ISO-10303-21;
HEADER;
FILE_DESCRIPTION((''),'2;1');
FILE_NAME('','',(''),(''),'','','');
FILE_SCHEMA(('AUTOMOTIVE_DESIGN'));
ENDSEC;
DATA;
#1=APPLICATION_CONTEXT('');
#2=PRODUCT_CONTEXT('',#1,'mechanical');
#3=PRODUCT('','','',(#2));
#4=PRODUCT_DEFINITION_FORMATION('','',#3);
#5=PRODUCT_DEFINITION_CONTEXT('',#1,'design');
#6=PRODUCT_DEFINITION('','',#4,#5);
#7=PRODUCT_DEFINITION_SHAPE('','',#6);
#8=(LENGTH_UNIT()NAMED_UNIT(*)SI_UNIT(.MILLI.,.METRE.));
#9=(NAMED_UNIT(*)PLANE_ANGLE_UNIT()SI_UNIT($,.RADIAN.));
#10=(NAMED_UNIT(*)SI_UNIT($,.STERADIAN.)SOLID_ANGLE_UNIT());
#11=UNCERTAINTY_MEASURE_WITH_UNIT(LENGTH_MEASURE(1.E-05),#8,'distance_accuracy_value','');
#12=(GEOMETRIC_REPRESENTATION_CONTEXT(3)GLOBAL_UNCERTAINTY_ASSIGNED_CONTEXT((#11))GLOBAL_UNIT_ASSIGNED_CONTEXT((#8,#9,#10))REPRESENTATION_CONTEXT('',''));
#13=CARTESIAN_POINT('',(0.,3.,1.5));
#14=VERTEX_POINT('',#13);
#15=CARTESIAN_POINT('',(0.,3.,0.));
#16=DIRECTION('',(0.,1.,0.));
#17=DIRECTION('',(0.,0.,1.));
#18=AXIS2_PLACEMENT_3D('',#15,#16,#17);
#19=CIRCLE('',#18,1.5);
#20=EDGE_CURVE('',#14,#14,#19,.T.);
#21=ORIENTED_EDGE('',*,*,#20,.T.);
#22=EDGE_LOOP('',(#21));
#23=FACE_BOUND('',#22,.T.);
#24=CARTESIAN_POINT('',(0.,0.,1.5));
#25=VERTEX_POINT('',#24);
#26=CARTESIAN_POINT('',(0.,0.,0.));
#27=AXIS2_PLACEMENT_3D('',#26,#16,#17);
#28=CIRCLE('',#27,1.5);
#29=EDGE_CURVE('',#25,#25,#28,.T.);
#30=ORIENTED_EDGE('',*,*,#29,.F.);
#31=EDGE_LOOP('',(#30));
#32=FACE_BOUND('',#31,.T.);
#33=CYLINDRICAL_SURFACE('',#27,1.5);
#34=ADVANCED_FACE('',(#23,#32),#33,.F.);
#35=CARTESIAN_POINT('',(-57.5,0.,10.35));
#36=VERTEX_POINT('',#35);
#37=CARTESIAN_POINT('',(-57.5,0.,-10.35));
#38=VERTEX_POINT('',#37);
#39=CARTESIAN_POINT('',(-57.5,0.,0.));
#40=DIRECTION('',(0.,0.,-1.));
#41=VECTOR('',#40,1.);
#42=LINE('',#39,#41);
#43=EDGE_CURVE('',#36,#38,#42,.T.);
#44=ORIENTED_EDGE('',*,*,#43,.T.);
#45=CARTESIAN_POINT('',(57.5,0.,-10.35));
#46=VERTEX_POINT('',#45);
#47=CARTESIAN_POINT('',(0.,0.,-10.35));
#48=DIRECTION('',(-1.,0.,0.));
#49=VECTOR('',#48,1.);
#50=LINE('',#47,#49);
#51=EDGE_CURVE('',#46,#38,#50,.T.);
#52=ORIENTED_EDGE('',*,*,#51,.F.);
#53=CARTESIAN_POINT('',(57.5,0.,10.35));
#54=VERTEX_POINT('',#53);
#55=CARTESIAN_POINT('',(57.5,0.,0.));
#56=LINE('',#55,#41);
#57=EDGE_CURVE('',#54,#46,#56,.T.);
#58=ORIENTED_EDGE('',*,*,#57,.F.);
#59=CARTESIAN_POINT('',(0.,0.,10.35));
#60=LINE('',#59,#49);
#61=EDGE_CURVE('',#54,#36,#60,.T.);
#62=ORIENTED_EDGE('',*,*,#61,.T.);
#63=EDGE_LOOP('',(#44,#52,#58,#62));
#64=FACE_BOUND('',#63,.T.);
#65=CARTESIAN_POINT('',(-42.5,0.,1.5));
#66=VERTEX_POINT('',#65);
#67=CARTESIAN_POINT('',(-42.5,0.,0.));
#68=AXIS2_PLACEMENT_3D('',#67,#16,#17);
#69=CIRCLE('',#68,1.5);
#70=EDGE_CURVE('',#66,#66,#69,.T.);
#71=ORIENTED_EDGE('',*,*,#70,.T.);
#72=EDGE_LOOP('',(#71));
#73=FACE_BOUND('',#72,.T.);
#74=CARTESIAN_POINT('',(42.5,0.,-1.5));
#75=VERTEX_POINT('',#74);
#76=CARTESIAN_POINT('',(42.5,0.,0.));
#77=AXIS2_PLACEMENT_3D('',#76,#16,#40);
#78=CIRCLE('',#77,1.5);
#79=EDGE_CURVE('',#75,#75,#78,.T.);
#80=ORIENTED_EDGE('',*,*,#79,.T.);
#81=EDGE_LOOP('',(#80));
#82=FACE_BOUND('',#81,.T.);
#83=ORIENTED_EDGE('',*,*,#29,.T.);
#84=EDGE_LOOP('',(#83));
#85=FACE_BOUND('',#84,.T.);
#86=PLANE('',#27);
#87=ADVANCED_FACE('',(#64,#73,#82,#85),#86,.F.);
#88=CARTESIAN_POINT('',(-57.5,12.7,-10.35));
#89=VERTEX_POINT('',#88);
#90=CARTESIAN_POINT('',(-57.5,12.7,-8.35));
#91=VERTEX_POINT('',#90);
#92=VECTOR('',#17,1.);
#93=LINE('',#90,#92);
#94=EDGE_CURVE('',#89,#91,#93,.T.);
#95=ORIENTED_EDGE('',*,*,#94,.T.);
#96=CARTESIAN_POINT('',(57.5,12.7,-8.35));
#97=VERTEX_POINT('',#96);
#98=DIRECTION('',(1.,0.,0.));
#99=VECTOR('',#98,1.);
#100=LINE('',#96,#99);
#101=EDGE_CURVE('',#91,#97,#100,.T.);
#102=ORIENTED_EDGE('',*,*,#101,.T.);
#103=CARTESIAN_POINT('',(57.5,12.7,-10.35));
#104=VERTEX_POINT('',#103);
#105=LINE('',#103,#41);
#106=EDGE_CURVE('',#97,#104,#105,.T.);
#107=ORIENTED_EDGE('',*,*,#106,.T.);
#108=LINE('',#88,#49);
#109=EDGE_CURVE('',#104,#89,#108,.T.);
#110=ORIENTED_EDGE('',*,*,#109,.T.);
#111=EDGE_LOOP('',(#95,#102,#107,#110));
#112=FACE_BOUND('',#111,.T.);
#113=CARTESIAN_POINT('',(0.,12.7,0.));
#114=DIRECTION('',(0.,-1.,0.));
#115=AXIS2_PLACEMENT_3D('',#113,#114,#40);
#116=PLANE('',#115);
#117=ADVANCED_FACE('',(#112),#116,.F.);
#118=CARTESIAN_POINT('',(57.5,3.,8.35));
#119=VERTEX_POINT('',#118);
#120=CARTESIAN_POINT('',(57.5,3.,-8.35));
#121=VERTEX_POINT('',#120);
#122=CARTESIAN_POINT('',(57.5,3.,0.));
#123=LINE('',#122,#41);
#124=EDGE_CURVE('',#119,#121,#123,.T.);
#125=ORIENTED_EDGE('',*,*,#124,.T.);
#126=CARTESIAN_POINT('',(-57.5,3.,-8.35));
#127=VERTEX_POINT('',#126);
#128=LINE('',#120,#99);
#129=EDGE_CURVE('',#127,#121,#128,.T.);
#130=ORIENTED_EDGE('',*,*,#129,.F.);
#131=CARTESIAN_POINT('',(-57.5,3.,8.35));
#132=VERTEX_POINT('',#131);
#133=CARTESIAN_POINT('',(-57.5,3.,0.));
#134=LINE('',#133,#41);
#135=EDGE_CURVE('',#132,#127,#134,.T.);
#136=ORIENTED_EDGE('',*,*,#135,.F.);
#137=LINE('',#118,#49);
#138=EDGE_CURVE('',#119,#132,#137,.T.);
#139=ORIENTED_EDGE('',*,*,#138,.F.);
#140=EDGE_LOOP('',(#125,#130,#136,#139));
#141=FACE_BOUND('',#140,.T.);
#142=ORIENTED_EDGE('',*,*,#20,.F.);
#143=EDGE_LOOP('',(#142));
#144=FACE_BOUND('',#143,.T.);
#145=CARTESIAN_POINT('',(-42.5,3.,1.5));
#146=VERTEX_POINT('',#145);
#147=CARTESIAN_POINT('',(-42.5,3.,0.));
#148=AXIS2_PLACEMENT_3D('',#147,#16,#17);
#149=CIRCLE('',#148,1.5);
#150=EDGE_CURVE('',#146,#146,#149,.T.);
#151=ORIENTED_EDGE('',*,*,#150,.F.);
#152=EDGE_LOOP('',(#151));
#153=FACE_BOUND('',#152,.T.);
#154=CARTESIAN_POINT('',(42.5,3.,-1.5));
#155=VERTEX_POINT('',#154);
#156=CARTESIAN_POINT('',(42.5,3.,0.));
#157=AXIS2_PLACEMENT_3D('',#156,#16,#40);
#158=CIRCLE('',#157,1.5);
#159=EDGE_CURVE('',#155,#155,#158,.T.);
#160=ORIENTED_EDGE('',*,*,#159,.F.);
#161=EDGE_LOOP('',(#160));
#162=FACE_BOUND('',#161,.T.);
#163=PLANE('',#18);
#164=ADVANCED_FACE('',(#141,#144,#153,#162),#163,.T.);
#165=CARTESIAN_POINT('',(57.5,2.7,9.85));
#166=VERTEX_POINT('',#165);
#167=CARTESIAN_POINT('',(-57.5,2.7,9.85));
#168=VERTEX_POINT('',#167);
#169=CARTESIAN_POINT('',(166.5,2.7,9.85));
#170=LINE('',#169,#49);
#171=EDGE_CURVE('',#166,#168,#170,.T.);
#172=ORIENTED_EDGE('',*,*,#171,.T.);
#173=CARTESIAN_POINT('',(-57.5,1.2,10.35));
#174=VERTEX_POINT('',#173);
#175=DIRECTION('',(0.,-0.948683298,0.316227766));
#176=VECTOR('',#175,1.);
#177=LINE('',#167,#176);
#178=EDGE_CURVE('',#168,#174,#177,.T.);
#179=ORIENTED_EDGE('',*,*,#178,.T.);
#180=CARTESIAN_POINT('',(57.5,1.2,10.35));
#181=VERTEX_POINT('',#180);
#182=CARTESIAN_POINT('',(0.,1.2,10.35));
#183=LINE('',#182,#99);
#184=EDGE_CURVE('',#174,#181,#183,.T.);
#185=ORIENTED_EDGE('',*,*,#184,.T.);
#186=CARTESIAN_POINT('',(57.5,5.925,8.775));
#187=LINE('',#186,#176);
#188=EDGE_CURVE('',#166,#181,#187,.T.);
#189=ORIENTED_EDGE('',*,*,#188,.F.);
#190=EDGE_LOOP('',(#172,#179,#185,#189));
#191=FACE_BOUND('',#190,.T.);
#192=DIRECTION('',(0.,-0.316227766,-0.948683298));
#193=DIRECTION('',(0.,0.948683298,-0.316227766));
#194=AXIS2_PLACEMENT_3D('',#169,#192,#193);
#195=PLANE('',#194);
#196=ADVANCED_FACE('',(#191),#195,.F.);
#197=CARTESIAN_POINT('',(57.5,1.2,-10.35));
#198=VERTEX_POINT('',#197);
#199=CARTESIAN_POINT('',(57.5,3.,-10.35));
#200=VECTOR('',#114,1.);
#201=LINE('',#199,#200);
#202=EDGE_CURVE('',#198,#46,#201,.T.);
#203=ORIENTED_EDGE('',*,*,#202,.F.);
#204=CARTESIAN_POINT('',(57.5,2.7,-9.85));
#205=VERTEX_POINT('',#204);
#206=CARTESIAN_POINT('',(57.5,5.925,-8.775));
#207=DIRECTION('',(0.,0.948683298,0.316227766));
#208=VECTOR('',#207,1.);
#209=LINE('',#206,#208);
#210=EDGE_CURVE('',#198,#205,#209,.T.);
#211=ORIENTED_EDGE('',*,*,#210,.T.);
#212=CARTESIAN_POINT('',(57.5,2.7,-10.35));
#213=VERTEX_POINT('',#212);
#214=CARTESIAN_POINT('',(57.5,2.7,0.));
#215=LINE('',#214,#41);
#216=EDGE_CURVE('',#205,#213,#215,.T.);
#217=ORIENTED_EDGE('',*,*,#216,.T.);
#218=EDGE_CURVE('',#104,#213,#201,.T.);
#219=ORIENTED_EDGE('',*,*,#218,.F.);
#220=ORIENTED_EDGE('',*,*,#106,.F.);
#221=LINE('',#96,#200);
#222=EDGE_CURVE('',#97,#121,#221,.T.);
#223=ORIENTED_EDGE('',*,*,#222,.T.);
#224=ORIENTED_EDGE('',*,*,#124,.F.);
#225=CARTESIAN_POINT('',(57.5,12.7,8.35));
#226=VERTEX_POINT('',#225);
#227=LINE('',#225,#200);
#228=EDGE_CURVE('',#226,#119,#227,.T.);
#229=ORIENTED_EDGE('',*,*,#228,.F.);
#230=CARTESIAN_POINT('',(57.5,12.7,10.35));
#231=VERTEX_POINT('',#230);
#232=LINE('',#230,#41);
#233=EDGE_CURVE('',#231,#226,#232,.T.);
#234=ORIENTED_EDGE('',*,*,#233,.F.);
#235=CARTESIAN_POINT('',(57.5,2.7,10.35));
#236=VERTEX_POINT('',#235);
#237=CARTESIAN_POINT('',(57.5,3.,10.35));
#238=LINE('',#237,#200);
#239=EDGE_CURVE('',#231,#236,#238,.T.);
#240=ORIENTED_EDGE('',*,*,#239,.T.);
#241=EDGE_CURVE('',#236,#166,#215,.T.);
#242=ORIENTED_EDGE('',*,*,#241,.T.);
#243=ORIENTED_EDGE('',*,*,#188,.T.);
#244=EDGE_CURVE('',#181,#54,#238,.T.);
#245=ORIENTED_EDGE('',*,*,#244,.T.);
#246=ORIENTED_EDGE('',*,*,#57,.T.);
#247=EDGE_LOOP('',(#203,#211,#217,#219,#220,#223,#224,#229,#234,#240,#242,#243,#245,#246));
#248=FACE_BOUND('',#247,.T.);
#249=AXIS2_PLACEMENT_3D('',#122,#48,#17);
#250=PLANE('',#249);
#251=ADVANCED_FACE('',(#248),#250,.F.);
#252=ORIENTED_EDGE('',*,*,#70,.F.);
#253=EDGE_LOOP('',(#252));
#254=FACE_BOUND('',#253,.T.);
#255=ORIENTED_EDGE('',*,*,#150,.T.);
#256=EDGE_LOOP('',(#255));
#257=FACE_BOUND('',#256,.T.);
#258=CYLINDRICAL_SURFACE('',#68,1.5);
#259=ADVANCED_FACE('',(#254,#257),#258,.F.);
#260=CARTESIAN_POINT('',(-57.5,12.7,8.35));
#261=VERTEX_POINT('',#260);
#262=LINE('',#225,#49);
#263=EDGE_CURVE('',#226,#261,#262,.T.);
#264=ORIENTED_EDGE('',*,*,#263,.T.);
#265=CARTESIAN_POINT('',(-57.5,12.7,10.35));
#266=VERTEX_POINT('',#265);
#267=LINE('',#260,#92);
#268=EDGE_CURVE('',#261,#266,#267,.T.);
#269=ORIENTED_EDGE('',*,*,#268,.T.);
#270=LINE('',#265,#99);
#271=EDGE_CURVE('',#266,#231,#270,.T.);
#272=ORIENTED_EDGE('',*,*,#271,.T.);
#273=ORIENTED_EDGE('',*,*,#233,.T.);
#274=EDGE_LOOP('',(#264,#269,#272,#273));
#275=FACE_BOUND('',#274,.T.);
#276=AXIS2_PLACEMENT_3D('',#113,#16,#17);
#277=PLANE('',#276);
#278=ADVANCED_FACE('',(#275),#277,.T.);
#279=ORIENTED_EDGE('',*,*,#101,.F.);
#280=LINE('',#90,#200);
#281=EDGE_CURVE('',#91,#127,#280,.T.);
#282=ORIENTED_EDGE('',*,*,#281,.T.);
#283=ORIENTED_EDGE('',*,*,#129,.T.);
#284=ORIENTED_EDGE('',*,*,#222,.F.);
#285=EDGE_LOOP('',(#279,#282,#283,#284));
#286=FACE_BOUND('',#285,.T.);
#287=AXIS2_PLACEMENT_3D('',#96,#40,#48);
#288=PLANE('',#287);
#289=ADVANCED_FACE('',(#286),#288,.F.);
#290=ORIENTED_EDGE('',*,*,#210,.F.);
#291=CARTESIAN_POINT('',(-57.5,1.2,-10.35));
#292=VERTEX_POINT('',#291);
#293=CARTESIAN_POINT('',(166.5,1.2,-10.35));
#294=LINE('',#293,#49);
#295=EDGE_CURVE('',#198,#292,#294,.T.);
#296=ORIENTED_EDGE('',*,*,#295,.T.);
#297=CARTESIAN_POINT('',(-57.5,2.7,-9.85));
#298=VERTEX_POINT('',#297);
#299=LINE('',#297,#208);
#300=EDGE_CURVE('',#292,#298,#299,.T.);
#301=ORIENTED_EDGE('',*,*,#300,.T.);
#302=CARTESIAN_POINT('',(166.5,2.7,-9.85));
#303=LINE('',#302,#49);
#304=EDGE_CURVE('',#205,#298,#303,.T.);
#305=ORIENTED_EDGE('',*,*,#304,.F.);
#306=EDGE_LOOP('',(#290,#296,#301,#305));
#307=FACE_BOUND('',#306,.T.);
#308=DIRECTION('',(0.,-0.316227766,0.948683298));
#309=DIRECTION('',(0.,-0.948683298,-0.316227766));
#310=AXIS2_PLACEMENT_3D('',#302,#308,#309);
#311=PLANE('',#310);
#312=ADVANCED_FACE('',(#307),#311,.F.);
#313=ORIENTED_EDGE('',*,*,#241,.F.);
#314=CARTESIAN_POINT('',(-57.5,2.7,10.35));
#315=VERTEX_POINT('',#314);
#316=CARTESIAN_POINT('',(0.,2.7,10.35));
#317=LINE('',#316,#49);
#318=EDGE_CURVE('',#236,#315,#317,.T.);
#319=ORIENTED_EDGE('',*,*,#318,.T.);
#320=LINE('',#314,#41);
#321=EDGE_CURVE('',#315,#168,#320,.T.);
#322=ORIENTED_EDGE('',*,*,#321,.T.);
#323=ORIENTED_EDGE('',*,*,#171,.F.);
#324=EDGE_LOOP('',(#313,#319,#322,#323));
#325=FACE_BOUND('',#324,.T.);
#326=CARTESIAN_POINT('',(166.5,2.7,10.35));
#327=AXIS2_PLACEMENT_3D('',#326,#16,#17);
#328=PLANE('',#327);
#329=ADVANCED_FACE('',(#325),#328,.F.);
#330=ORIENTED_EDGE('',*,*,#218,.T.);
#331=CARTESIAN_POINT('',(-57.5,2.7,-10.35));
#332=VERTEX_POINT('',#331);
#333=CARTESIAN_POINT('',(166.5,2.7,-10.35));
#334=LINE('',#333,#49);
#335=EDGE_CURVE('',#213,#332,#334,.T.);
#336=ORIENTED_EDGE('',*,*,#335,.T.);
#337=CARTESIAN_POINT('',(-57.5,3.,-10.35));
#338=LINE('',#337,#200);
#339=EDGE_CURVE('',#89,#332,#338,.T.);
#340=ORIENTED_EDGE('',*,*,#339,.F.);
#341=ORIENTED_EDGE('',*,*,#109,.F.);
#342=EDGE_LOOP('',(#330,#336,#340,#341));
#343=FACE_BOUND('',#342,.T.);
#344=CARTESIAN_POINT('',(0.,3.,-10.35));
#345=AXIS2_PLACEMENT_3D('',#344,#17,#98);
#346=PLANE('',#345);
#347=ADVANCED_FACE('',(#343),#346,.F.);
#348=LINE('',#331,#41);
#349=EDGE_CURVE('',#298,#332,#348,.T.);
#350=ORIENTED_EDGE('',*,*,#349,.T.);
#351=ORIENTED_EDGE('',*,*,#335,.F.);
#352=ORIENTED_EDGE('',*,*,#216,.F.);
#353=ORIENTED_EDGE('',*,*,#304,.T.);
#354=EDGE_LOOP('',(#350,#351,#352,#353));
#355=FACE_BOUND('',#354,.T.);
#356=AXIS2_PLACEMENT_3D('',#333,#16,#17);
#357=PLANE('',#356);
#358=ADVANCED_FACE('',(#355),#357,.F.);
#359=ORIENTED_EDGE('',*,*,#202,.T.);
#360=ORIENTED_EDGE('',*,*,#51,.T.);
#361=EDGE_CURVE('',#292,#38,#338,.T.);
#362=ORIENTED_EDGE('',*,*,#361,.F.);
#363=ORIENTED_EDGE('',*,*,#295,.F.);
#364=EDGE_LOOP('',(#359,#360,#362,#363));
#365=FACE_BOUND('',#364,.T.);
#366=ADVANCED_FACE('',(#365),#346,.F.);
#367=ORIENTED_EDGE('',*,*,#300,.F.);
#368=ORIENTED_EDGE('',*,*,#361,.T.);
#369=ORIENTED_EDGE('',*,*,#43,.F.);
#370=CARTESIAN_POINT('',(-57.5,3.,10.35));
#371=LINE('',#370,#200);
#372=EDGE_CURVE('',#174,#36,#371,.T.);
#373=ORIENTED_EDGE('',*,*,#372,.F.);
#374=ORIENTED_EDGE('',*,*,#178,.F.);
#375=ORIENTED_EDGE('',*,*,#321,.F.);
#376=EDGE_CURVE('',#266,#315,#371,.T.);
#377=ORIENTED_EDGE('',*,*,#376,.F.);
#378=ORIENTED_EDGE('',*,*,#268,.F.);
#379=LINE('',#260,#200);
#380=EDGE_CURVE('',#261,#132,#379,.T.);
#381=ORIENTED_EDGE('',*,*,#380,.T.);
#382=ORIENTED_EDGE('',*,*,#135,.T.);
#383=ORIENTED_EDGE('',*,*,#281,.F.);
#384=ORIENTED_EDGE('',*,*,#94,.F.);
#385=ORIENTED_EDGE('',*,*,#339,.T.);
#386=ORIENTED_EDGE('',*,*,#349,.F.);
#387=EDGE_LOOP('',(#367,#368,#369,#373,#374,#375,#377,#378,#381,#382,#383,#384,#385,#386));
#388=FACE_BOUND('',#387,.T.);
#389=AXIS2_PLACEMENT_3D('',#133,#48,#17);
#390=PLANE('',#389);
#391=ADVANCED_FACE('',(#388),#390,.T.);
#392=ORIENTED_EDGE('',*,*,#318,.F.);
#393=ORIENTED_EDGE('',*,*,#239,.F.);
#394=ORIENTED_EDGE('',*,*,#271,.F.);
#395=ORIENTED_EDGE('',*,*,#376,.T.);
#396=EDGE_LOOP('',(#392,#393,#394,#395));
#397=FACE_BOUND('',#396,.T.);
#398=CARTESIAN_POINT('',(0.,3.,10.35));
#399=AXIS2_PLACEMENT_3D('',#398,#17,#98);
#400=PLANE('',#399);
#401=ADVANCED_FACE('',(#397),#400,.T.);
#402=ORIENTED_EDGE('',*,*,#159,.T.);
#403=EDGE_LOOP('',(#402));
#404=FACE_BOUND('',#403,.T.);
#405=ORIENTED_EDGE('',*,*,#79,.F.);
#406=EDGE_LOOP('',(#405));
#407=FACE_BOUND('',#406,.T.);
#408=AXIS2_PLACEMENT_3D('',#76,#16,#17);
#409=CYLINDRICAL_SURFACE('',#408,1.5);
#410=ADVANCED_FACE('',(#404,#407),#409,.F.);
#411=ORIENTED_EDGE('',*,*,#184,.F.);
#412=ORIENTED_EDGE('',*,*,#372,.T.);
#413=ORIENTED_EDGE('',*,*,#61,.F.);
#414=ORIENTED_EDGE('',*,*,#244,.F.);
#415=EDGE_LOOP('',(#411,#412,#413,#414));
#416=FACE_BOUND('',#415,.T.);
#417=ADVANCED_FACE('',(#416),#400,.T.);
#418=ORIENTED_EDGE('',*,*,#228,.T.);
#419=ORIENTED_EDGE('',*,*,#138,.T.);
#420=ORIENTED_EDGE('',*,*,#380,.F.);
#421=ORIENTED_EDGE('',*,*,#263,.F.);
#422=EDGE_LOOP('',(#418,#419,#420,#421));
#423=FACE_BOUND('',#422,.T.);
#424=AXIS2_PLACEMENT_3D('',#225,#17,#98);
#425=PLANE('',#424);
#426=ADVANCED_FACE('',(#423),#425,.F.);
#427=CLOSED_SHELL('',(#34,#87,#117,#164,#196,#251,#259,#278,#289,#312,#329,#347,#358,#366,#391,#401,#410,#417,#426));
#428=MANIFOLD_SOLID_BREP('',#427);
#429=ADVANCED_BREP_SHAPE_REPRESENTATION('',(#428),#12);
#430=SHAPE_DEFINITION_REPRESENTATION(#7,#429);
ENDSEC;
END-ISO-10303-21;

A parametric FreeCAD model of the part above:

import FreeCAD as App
import Part
import Sketcher
from FreeCAD import Vector

doc = App.newDocument("Part")
body = doc.addObject("PartDesign::Body", "Body")

# Sketch on XZ plane
sketch1 = body.newObject("Sketcher::SketchObject", "Sketch")
sketch1.AttachmentSupport = (doc.getObject("XZ_Plane"), [""])
sketch1.MapMode = "FlatFace"
sketch1.addGeometry([
    Part.LineSegment(Vector(-58, -10, 0), Vector(-58, 10, 0)),
    Part.LineSegment(Vector(-58, 10, 0), Vector(58, 10, 0)),
    Part.LineSegment(Vector(58, 10, 0), Vector(58, -10, 0)),
    Part.LineSegment(Vector(58, -10, 0), Vector(-58, -10, 0)),
], False)
sketch1.addConstraint([
    Sketcher.Constraint("Coincident", 0, 2, 1, 1),
    Sketcher.Constraint("Coincident", 1, 2, 2, 1),
    Sketcher.Constraint("Coincident", 2, 2, 3, 1),
    Sketcher.Constraint("Coincident", 3, 2, 0, 1),
    Sketcher.Constraint("Vertical", 0),
    Sketcher.Constraint("Horizontal", 1),
    Sketcher.Constraint("Vertical", 2),
    Sketcher.Constraint("Horizontal", 3),
    Sketcher.Constraint("Symmetric", 0, 2, 2, 2, -1, 1),
    Sketcher.Constraint("DistanceX", 1, 1, 1, 2, 115.0),
    Sketcher.Constraint("DistanceY", 0, 1, 0, 2, 20.7),
])
pad1 = body.newObject("PartDesign::Pad", "Pad")
pad1.Profile = sketch1
pad1.Length = 3
pad1.Reversed = True

# Sketch on XZ plane
sketch2 = body.newObject("Sketcher::SketchObject", "Sketch001")
sketch2.AttachmentSupport = (doc.getObject("XZ_Plane"), [""])
sketch2.MapMode = "FlatFace"
sketch2.AttachmentOffset = App.Placement(Vector(0, 0, -3), App.Rotation())
sketch2.addGeometry([
    Part.Circle(Vector(-42.5, 0, 0), Vector(0, 0, 1), 1.5),
    Part.Circle(Vector(0, 0, 0), Vector(0, 0, 1), 1.5),
    Part.Circle(Vector(42.5, 0, 0), Vector(0, 0, 1), 1.5),
], False)
sketch2.addConstraint([
    Sketcher.Constraint("Coincident", 1, 3, -1, 1),
    Sketcher.Constraint("Equal", 0, 1),
    Sketcher.Constraint("Equal", 1, 2),
    Sketcher.Constraint("Symmetric", 0, 3, 2, 3, -1, 1),
    Sketcher.Constraint("PointOnObject", 0, 3, -1),
    Sketcher.Constraint("Diameter", 0, 3.0),
    Sketcher.Constraint("DistanceX", 0, 3, 2, 3, 85.0),
])
pocket1 = body.newObject("PartDesign::Pocket", "Pocket")
pocket1.Profile = sketch2
pocket1.Length = 3
pocket1.Reversed = True

# Sketch on XZ plane
sketch3 = body.newObject("Sketcher::SketchObject", "Sketch002")
sketch3.AttachmentSupport = (doc.getObject("XZ_Plane"), [""])
sketch3.MapMode = "FlatFace"
sketch3.AttachmentOffset = App.Placement(Vector(0, 0, -3), App.Rotation())
sketch3.addGeometry([
    Part.LineSegment(Vector(-57.5, -10.3, 0), Vector(-57.5, -8.3, 0)),  # 0
    Part.LineSegment(Vector(-57.5, -8.3, 0), Vector(57.5, -8.3, 0)),  # 1
    Part.LineSegment(Vector(57.5, -8.3, 0), Vector(57.5, -10.3, 0)),  # 2
    Part.LineSegment(Vector(57.5, -10.3, 0), Vector(-57.5, -10.3, 0)),  # 3
    Part.LineSegment(Vector(-57.5, 8.3, 0), Vector(-57.5, 10.3, 0)),  # 4
    Part.LineSegment(Vector(-57.5, 10.3, 0), Vector(57.5, 10.3, 0)),  # 5
    Part.LineSegment(Vector(57.5, 10.3, 0), Vector(57.5, 8.3, 0)),  # 6
    Part.LineSegment(Vector(57.5, 8.3, 0), Vector(-57.5, 8.3, 0)),  # 7
], False)
sketch3.addConstraint([
    Sketcher.Constraint("Coincident", 0, 2, 1, 1),
    Sketcher.Constraint("Coincident", 1, 2, 2, 1),
    Sketcher.Constraint("Coincident", 2, 2, 3, 1),
    Sketcher.Constraint("Coincident", 3, 2, 0, 1),
    Sketcher.Constraint("Coincident", 4, 2, 5, 1),
    Sketcher.Constraint("Coincident", 5, 2, 6, 1),
    Sketcher.Constraint("Coincident", 6, 2, 7, 1),
    Sketcher.Constraint("Coincident", 7, 2, 4, 1),
    Sketcher.Constraint("Vertical", 0),
    Sketcher.Constraint("Horizontal", 1),
    Sketcher.Constraint("Vertical", 2),
    Sketcher.Constraint("Horizontal", 3),
    Sketcher.Constraint("Vertical", 4),
    Sketcher.Constraint("Horizontal", 5),
    Sketcher.Constraint("Vertical", 6),
    Sketcher.Constraint("Horizontal", 7),
    Sketcher.Constraint("Symmetric", 2, 2, 4, 2, -1, 1),
    Sketcher.Constraint("Symmetric", 0, 2, 6, 2, -1, 1),
    Sketcher.Constraint("Vertical", 3, 2, 4, 2),
    Sketcher.Constraint("DistanceX", 1, 1, 1, 2, 115.0),
    Sketcher.Constraint("DistanceY", 0, 1, 0, 2, 2.0),
    Sketcher.Constraint("DistanceY", 0, 2, 4, 2, 18.7),
])
pad2 = body.newObject("PartDesign::Pad", "Pad001")
pad2.Profile = sketch3
pad2.Length = 9.7
pad2.Reversed = True

# Sketch on YZ plane
sketch4 = body.newObject("Sketcher::SketchObject", "Sketch003")
sketch4.AttachmentSupport = (doc.getObject("YZ_Plane"), [""])
sketch4.MapMode = "FlatFace"
sketch4.AttachmentOffset = App.Placement(Vector(0, 0, -57.5), App.Rotation())
sketch4.addGeometry([
    Part.LineSegment(Vector(2.7, -9.8, 0), Vector(2.7, -10.3, 0)),  # 0
    Part.LineSegment(Vector(2.7, -10.3, 0), Vector(1.2, -10.3, 0)),  # 1
    Part.LineSegment(Vector(1.2, -10.3, 0), Vector(2.7, -9.8, 0)),  # 2
    Part.LineSegment(Vector(2.7, 10.3, 0), Vector(2.7, 9.8, 0)),  # 3
    Part.LineSegment(Vector(2.7, 9.8, 0), Vector(1.2, 10.3, 0)),  # 4
    Part.LineSegment(Vector(1.2, 10.3, 0), Vector(2.7, 10.3, 0)),  # 5
], False)
sketch4.addConstraint([
    Sketcher.Constraint("Coincident", 0, 2, 1, 1),
    Sketcher.Constraint("Coincident", 1, 2, 2, 1),
    Sketcher.Constraint("Coincident", 2, 2, 0, 1),
    Sketcher.Constraint("Coincident", 3, 2, 4, 1),
    Sketcher.Constraint("Coincident", 4, 2, 5, 1),
    Sketcher.Constraint("Coincident", 5, 2, 3, 1),
    Sketcher.Constraint("Vertical", 0),
    Sketcher.Constraint("Horizontal", 1),
    Sketcher.Constraint("Vertical", 3),
    Sketcher.Constraint("Horizontal", 5),
    Sketcher.Constraint("Symmetric", 2, 2, 3, 2, -1),
    Sketcher.Constraint("Symmetric", 1, 2, 4, 2, -1),
    Sketcher.Constraint("DistanceX", 1, 2, 1, 1, 1.5),
    Sketcher.Constraint("DistanceY", 0, 2, 0, 1, 0.5),
    Sketcher.Constraint("DistanceX", -1, 1, 0, 2, 2.7),
    Sketcher.Constraint("DistanceY", 2, 2, 3, 2, 19.7),
])
pocket2 = body.newObject("PartDesign::Pocket", "Pocket001")
pocket2.Profile = sketch4
pocket2.Length = 224
pocket2.Reversed = True

doc.recompute()
